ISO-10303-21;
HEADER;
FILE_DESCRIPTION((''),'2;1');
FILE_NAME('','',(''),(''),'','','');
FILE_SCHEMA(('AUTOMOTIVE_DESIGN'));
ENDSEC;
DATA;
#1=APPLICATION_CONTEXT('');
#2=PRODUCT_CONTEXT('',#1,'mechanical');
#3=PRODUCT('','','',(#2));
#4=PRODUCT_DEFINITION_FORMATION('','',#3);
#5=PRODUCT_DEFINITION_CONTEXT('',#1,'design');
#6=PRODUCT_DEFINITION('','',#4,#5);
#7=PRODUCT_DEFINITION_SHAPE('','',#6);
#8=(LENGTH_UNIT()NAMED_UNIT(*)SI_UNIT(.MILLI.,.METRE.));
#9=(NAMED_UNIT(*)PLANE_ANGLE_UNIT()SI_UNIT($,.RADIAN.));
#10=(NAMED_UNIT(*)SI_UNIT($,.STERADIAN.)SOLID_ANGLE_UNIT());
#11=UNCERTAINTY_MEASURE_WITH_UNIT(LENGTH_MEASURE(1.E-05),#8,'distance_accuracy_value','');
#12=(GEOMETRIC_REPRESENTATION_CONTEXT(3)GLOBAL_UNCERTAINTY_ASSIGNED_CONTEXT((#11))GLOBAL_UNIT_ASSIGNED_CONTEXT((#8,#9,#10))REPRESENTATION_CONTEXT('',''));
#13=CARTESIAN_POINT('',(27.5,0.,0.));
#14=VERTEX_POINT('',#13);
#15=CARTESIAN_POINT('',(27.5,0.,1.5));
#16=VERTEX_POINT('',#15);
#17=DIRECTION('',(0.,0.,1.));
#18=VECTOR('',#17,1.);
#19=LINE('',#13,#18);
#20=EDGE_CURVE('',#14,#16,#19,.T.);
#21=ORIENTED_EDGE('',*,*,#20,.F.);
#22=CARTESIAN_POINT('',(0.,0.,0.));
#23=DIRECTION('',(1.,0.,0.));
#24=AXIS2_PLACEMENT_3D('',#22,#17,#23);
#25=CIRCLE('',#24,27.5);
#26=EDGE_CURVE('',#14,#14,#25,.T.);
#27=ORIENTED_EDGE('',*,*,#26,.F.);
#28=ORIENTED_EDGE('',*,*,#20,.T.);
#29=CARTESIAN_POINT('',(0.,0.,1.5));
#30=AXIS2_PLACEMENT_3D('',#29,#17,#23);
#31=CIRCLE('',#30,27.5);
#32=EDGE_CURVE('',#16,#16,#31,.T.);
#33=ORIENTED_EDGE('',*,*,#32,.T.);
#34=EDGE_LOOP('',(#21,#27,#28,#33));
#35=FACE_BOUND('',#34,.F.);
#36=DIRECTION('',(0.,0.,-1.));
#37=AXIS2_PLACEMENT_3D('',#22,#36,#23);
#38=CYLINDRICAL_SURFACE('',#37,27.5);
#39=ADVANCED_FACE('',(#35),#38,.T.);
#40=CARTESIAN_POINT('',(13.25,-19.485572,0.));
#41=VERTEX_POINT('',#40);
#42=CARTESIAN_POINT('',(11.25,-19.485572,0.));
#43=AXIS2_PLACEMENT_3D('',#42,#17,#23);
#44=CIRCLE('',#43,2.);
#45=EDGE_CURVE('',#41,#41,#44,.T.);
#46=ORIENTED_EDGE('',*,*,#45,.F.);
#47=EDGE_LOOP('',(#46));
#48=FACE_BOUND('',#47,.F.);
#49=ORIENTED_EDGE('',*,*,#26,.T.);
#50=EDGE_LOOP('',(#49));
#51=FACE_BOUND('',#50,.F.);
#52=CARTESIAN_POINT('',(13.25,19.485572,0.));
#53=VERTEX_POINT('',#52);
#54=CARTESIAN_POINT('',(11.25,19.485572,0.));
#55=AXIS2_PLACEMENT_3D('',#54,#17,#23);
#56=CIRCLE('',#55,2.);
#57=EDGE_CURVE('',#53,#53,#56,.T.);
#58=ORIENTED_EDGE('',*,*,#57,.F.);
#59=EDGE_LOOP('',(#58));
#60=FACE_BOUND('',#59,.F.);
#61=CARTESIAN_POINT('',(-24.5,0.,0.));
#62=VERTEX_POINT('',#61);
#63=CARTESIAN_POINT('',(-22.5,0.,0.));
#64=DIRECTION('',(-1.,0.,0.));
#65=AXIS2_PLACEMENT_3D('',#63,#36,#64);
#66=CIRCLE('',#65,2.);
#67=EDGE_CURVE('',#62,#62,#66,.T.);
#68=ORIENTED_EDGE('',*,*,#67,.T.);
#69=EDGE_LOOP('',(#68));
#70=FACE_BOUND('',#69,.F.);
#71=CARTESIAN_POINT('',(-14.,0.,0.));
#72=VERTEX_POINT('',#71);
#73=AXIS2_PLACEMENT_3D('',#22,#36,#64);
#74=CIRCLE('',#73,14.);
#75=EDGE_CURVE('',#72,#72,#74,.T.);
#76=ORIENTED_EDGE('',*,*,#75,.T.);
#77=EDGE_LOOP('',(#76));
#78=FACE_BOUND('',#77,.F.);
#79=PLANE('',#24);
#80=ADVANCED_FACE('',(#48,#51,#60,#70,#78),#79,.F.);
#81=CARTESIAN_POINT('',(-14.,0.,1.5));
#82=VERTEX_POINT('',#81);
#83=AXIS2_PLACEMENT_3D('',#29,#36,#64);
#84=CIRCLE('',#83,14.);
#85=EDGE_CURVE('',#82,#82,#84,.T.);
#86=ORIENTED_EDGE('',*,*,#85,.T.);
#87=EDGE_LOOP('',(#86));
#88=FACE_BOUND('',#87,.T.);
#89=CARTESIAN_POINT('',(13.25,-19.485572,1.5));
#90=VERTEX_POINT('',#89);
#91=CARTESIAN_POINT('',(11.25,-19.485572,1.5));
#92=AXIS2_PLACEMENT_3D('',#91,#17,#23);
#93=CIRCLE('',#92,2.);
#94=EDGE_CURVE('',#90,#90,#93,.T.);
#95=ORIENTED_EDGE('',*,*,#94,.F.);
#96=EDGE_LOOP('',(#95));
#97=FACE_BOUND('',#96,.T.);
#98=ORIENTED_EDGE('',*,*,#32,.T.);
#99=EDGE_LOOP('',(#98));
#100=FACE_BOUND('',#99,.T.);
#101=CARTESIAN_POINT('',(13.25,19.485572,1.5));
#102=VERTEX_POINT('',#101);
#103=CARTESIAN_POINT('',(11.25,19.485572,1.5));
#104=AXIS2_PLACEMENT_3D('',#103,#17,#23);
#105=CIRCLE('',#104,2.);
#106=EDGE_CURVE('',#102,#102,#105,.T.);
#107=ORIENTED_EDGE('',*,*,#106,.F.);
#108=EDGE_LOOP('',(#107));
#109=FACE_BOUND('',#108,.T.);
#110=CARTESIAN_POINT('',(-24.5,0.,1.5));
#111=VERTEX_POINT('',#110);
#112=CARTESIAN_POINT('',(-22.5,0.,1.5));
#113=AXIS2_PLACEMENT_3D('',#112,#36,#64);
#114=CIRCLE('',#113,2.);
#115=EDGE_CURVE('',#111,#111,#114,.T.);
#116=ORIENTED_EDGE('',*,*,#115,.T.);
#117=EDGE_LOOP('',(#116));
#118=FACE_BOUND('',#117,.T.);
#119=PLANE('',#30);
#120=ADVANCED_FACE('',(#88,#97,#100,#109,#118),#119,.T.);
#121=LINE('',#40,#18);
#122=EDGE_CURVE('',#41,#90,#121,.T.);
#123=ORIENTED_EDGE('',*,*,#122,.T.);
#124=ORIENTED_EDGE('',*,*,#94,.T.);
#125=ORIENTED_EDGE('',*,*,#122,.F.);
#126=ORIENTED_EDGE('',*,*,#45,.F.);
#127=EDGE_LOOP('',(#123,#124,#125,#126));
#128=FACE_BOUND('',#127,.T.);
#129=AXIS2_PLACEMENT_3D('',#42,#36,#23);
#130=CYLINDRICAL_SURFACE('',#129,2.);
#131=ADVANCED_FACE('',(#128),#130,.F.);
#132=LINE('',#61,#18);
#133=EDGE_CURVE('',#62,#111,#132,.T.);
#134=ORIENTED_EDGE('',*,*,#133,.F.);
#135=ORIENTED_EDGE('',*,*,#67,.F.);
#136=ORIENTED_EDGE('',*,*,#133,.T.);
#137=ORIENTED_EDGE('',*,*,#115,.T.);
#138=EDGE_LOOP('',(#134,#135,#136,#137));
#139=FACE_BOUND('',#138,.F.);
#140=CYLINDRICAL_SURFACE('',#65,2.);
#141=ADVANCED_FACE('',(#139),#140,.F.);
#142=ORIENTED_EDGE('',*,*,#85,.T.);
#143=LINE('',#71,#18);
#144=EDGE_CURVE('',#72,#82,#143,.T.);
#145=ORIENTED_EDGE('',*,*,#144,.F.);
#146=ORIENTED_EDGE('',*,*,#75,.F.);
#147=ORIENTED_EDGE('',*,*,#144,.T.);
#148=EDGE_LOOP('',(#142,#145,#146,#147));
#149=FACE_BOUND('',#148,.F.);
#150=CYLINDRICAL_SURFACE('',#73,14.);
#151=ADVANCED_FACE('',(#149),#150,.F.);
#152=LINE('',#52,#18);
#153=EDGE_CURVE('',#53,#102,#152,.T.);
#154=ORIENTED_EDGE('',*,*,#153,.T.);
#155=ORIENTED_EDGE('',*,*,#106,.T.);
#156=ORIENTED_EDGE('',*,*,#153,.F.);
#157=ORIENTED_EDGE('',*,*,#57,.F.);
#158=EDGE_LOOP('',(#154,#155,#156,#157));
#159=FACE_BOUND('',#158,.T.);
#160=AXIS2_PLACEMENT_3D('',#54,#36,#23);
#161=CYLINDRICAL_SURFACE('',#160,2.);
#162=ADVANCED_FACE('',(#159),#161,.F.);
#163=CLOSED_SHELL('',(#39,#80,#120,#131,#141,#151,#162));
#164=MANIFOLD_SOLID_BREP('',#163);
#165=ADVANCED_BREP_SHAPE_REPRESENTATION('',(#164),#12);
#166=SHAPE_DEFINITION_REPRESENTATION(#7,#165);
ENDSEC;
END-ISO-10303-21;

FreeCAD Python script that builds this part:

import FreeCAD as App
import Part
import Sketcher

V = App.Vector
Q = App.Units.Quantity

doc = App.newDocument("Part")
body = doc.addObject("PartDesign::Body", "Body")

sketch1 = doc.addObject("Sketcher::SketchObject", "Sketch")
body.addObject(sketch1)
sketch1.AttachmentSupport = (doc.XY_Plane, [""])
sketch1.MapMode = "FlatFace"
sketch1.addGeometry([
    Part.Circle(V(0, 0, 0), V(0, 0, 1), 27.5),
    Part.Circle(V(11.2, -19.5, 0), V(0, 0, 1), 2),
    Part.Circle(V(0, 0, 0), V(0, 0, 1), 14),
    Part.Circle(V(-22.5, 0, 0), V(0, 0, 1), 2),
    Part.Circle(V(11.2, 19.5, 0), V(0, 0, 1), 2),
], False)
sketch1.addConstraint([
    Sketcher.Constraint("Coincident", 0, 3, -1, 1),
    Sketcher.Constraint("Coincident", 2, 3, -1, 1),
    Sketcher.Constraint("Equal", 1, 3),
    Sketcher.Constraint("Equal", 3, 4),
    Sketcher.Constraint("Symmetric", 1, 3, 4, 3, -1),
    Sketcher.Constraint("PointOnObject", 3, 3, -1),
    Sketcher.Constraint("Diameter", 0, Q("55 mm")),
    Sketcher.Constraint("Diameter", 1, Q("4 mm")),
    Sketcher.Constraint("Diameter", 2, Q("28 mm")),
    Sketcher.Constraint("DistanceX", 3, 3, -1, 1, Q("22.5 mm")),
    Sketcher.Constraint("DistanceX", -1, 1, 1, 3, Q("11.25 mm")),
    Sketcher.Constraint("DistanceY", 1, 3, -1, 1, Q("19.485572 mm")),
])
pad1 = doc.addObject("PartDesign::Pad", "Pad")
body.addObject(pad1)
pad1.Profile = sketch1
pad1.Length = 1.5

doc.recompute()
